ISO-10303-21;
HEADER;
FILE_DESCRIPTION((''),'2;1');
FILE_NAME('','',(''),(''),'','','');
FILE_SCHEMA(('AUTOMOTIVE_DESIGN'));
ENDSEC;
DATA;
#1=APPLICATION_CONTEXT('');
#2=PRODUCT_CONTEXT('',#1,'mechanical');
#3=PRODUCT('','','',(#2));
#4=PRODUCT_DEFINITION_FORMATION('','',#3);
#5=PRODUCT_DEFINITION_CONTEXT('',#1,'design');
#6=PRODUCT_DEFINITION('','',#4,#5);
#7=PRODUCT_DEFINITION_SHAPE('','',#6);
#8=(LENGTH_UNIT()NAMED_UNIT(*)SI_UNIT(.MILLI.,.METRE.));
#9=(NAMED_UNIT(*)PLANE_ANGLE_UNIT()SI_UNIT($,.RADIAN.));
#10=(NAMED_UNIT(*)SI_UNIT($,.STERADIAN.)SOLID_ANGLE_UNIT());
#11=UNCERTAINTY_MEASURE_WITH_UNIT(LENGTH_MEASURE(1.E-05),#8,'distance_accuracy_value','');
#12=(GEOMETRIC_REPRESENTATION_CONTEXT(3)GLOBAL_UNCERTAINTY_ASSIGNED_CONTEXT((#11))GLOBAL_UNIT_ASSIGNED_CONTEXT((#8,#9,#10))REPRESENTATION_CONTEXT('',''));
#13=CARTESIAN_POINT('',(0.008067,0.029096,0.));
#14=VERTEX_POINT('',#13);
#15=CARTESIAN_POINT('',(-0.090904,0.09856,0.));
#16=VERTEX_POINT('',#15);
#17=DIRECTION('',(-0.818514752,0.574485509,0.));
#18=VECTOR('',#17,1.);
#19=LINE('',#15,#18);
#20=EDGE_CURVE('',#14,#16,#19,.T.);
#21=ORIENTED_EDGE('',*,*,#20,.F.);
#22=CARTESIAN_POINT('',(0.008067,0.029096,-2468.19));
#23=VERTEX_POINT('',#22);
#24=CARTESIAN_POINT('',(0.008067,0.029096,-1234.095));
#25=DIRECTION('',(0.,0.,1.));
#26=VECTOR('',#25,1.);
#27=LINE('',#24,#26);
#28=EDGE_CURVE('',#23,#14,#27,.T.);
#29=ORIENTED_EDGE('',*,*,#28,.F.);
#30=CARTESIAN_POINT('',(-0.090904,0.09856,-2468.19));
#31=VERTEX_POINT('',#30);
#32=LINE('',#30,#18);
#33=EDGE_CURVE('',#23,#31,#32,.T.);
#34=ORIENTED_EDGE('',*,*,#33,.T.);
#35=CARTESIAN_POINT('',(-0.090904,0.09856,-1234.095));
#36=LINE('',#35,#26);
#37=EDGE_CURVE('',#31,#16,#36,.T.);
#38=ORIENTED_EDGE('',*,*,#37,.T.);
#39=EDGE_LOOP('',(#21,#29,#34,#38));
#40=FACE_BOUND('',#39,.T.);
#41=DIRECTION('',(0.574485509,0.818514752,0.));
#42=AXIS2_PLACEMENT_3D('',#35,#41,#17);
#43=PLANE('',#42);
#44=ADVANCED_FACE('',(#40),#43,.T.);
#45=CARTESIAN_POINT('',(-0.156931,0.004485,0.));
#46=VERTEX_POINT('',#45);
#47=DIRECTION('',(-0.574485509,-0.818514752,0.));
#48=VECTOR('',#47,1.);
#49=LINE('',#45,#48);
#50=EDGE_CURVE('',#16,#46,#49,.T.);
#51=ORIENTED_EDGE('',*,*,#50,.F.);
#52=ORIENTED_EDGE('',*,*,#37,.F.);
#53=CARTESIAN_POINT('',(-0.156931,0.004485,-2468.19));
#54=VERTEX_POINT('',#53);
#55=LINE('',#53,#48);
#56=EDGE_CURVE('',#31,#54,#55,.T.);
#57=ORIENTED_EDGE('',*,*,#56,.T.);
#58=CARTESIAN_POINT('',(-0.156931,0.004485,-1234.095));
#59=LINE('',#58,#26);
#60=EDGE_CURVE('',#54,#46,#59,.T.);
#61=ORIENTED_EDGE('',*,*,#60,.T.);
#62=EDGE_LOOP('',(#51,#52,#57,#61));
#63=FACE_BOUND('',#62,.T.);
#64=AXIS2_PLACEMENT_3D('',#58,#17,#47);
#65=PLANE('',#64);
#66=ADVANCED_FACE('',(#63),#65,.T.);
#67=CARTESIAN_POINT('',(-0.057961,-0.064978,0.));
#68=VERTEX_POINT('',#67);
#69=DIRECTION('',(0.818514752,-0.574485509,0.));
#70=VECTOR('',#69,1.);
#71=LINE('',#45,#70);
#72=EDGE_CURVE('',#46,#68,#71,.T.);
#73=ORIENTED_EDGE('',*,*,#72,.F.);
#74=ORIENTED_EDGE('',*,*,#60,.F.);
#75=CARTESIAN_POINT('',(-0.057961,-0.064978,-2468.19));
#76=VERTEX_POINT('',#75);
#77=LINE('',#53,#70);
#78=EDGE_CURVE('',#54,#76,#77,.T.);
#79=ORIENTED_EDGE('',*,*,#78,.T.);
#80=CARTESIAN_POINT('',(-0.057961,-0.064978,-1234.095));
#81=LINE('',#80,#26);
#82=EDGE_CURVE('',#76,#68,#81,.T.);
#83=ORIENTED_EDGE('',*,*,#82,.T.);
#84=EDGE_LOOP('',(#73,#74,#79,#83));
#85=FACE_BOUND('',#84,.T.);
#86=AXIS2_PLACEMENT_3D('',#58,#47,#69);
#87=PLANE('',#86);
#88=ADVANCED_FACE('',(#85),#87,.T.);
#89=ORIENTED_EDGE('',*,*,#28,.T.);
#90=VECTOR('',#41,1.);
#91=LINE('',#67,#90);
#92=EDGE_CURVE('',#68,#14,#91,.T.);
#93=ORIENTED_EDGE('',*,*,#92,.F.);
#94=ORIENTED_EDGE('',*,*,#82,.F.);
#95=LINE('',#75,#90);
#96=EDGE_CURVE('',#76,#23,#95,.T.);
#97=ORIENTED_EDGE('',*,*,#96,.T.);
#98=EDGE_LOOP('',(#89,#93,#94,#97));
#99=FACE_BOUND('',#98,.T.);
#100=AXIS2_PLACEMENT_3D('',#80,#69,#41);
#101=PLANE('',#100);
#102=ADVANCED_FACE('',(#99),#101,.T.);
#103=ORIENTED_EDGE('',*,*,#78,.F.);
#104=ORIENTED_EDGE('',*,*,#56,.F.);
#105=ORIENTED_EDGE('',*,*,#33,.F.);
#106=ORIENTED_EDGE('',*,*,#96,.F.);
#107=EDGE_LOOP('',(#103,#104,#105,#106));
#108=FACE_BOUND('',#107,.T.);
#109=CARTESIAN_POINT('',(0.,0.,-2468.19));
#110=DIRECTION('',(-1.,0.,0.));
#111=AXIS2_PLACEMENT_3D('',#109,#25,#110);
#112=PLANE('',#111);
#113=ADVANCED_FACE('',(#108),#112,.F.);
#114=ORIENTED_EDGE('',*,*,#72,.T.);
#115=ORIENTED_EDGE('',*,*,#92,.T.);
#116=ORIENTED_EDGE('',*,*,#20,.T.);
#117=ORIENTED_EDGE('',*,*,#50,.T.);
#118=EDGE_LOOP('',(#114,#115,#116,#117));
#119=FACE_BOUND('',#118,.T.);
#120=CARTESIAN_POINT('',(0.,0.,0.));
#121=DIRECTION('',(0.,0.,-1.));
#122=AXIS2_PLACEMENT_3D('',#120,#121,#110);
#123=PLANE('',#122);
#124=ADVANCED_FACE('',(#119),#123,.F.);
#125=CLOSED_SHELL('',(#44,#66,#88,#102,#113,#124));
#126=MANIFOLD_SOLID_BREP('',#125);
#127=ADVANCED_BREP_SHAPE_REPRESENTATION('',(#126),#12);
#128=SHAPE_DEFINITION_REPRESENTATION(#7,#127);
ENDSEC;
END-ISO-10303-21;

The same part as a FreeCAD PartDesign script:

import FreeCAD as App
import Part
import Sketcher

V = App.Vector

doc = App.newDocument("Part")
body = doc.addObject("PartDesign::Body", "Body")

# Sketch on XY plane
sketch1 = body.newObject("Sketcher::SketchObject", "Sketch")
sketch1.AttachmentSupport = (doc.getObject("XY_Plane"), [""])
sketch1.MapMode = "FlatFace"
sketch1.addGeometry([
    Part.LineSegment(V(-0.16, 0, 0), V(-0.06, -0.06, 0)),
    Part.LineSegment(V(-0.06, -0.06, 0), V(0.01, 0.03, 0)),
    Part.LineSegment(V(0.01, 0.03, 0), V(-0.09, 0.1, 0)),
    Part.LineSegment(V(-0.09, 0.1, 0), V(-0.16, 0, 0)),
], False)
sketch1.addConstraint([
    Sketcher.Constraint("Coincident", 0, 2, 1, 1),
    Sketcher.Constraint("Coincident", 1, 2, 2, 1),
    Sketcher.Constraint("Coincident", 2, 2, 3, 1),
    Sketcher.Constraint("Coincident", 3, 2, 0, 1),
    Sketcher.Constraint("Perpendicular", 0, 1),
    Sketcher.Constraint("Perpendicular", 1, 2),
    Sketcher.Constraint("Perpendicular", 2, 3),
    Sketcher.Constraint("DistanceX", 3, 2, 1, 2, 0.164998),
    Sketcher.Constraint("DistanceX", 0, 2, -1, 1, 0.057961),
    Sketcher.Constraint("DistanceY", 0, 2, -1, 1, 0.064978),
    Sketcher.Constraint("DistanceY", -1, 1, 2, 2, 0.09856),
    Sketcher.Constraint("DistanceX", 3, 2, -1, 1, 0.156931),
])
pad1 = body.newObject("PartDesign::Pad", "Pad")
pad1.Profile = sketch1
pad1.Length = 1234.095
pad1.Reversed = True
body2 = doc.addObject("PartDesign::Body", "Body001")
doc.recompute()

body2.BaseFeature = body
doc.recompute()

mirroring = doc.addObject("Part::Mirroring", "Mirroring")
mirroring.Source = body
mirroring.Base = V(0, 0, -1234.095)
mirroring.Normal = V(0, 0, -1)
body3 = doc.addObject("PartDesign::Body", "Body002")
body3.BaseFeature = mirroring
boolean = body2.newObject("PartDesign::Boolean", "Boolean")
boolean.Type = "Fuse"
boolean.addObjects([body3])
doc.recompute()
mirroring.Visibility = False

doc.recompute()
